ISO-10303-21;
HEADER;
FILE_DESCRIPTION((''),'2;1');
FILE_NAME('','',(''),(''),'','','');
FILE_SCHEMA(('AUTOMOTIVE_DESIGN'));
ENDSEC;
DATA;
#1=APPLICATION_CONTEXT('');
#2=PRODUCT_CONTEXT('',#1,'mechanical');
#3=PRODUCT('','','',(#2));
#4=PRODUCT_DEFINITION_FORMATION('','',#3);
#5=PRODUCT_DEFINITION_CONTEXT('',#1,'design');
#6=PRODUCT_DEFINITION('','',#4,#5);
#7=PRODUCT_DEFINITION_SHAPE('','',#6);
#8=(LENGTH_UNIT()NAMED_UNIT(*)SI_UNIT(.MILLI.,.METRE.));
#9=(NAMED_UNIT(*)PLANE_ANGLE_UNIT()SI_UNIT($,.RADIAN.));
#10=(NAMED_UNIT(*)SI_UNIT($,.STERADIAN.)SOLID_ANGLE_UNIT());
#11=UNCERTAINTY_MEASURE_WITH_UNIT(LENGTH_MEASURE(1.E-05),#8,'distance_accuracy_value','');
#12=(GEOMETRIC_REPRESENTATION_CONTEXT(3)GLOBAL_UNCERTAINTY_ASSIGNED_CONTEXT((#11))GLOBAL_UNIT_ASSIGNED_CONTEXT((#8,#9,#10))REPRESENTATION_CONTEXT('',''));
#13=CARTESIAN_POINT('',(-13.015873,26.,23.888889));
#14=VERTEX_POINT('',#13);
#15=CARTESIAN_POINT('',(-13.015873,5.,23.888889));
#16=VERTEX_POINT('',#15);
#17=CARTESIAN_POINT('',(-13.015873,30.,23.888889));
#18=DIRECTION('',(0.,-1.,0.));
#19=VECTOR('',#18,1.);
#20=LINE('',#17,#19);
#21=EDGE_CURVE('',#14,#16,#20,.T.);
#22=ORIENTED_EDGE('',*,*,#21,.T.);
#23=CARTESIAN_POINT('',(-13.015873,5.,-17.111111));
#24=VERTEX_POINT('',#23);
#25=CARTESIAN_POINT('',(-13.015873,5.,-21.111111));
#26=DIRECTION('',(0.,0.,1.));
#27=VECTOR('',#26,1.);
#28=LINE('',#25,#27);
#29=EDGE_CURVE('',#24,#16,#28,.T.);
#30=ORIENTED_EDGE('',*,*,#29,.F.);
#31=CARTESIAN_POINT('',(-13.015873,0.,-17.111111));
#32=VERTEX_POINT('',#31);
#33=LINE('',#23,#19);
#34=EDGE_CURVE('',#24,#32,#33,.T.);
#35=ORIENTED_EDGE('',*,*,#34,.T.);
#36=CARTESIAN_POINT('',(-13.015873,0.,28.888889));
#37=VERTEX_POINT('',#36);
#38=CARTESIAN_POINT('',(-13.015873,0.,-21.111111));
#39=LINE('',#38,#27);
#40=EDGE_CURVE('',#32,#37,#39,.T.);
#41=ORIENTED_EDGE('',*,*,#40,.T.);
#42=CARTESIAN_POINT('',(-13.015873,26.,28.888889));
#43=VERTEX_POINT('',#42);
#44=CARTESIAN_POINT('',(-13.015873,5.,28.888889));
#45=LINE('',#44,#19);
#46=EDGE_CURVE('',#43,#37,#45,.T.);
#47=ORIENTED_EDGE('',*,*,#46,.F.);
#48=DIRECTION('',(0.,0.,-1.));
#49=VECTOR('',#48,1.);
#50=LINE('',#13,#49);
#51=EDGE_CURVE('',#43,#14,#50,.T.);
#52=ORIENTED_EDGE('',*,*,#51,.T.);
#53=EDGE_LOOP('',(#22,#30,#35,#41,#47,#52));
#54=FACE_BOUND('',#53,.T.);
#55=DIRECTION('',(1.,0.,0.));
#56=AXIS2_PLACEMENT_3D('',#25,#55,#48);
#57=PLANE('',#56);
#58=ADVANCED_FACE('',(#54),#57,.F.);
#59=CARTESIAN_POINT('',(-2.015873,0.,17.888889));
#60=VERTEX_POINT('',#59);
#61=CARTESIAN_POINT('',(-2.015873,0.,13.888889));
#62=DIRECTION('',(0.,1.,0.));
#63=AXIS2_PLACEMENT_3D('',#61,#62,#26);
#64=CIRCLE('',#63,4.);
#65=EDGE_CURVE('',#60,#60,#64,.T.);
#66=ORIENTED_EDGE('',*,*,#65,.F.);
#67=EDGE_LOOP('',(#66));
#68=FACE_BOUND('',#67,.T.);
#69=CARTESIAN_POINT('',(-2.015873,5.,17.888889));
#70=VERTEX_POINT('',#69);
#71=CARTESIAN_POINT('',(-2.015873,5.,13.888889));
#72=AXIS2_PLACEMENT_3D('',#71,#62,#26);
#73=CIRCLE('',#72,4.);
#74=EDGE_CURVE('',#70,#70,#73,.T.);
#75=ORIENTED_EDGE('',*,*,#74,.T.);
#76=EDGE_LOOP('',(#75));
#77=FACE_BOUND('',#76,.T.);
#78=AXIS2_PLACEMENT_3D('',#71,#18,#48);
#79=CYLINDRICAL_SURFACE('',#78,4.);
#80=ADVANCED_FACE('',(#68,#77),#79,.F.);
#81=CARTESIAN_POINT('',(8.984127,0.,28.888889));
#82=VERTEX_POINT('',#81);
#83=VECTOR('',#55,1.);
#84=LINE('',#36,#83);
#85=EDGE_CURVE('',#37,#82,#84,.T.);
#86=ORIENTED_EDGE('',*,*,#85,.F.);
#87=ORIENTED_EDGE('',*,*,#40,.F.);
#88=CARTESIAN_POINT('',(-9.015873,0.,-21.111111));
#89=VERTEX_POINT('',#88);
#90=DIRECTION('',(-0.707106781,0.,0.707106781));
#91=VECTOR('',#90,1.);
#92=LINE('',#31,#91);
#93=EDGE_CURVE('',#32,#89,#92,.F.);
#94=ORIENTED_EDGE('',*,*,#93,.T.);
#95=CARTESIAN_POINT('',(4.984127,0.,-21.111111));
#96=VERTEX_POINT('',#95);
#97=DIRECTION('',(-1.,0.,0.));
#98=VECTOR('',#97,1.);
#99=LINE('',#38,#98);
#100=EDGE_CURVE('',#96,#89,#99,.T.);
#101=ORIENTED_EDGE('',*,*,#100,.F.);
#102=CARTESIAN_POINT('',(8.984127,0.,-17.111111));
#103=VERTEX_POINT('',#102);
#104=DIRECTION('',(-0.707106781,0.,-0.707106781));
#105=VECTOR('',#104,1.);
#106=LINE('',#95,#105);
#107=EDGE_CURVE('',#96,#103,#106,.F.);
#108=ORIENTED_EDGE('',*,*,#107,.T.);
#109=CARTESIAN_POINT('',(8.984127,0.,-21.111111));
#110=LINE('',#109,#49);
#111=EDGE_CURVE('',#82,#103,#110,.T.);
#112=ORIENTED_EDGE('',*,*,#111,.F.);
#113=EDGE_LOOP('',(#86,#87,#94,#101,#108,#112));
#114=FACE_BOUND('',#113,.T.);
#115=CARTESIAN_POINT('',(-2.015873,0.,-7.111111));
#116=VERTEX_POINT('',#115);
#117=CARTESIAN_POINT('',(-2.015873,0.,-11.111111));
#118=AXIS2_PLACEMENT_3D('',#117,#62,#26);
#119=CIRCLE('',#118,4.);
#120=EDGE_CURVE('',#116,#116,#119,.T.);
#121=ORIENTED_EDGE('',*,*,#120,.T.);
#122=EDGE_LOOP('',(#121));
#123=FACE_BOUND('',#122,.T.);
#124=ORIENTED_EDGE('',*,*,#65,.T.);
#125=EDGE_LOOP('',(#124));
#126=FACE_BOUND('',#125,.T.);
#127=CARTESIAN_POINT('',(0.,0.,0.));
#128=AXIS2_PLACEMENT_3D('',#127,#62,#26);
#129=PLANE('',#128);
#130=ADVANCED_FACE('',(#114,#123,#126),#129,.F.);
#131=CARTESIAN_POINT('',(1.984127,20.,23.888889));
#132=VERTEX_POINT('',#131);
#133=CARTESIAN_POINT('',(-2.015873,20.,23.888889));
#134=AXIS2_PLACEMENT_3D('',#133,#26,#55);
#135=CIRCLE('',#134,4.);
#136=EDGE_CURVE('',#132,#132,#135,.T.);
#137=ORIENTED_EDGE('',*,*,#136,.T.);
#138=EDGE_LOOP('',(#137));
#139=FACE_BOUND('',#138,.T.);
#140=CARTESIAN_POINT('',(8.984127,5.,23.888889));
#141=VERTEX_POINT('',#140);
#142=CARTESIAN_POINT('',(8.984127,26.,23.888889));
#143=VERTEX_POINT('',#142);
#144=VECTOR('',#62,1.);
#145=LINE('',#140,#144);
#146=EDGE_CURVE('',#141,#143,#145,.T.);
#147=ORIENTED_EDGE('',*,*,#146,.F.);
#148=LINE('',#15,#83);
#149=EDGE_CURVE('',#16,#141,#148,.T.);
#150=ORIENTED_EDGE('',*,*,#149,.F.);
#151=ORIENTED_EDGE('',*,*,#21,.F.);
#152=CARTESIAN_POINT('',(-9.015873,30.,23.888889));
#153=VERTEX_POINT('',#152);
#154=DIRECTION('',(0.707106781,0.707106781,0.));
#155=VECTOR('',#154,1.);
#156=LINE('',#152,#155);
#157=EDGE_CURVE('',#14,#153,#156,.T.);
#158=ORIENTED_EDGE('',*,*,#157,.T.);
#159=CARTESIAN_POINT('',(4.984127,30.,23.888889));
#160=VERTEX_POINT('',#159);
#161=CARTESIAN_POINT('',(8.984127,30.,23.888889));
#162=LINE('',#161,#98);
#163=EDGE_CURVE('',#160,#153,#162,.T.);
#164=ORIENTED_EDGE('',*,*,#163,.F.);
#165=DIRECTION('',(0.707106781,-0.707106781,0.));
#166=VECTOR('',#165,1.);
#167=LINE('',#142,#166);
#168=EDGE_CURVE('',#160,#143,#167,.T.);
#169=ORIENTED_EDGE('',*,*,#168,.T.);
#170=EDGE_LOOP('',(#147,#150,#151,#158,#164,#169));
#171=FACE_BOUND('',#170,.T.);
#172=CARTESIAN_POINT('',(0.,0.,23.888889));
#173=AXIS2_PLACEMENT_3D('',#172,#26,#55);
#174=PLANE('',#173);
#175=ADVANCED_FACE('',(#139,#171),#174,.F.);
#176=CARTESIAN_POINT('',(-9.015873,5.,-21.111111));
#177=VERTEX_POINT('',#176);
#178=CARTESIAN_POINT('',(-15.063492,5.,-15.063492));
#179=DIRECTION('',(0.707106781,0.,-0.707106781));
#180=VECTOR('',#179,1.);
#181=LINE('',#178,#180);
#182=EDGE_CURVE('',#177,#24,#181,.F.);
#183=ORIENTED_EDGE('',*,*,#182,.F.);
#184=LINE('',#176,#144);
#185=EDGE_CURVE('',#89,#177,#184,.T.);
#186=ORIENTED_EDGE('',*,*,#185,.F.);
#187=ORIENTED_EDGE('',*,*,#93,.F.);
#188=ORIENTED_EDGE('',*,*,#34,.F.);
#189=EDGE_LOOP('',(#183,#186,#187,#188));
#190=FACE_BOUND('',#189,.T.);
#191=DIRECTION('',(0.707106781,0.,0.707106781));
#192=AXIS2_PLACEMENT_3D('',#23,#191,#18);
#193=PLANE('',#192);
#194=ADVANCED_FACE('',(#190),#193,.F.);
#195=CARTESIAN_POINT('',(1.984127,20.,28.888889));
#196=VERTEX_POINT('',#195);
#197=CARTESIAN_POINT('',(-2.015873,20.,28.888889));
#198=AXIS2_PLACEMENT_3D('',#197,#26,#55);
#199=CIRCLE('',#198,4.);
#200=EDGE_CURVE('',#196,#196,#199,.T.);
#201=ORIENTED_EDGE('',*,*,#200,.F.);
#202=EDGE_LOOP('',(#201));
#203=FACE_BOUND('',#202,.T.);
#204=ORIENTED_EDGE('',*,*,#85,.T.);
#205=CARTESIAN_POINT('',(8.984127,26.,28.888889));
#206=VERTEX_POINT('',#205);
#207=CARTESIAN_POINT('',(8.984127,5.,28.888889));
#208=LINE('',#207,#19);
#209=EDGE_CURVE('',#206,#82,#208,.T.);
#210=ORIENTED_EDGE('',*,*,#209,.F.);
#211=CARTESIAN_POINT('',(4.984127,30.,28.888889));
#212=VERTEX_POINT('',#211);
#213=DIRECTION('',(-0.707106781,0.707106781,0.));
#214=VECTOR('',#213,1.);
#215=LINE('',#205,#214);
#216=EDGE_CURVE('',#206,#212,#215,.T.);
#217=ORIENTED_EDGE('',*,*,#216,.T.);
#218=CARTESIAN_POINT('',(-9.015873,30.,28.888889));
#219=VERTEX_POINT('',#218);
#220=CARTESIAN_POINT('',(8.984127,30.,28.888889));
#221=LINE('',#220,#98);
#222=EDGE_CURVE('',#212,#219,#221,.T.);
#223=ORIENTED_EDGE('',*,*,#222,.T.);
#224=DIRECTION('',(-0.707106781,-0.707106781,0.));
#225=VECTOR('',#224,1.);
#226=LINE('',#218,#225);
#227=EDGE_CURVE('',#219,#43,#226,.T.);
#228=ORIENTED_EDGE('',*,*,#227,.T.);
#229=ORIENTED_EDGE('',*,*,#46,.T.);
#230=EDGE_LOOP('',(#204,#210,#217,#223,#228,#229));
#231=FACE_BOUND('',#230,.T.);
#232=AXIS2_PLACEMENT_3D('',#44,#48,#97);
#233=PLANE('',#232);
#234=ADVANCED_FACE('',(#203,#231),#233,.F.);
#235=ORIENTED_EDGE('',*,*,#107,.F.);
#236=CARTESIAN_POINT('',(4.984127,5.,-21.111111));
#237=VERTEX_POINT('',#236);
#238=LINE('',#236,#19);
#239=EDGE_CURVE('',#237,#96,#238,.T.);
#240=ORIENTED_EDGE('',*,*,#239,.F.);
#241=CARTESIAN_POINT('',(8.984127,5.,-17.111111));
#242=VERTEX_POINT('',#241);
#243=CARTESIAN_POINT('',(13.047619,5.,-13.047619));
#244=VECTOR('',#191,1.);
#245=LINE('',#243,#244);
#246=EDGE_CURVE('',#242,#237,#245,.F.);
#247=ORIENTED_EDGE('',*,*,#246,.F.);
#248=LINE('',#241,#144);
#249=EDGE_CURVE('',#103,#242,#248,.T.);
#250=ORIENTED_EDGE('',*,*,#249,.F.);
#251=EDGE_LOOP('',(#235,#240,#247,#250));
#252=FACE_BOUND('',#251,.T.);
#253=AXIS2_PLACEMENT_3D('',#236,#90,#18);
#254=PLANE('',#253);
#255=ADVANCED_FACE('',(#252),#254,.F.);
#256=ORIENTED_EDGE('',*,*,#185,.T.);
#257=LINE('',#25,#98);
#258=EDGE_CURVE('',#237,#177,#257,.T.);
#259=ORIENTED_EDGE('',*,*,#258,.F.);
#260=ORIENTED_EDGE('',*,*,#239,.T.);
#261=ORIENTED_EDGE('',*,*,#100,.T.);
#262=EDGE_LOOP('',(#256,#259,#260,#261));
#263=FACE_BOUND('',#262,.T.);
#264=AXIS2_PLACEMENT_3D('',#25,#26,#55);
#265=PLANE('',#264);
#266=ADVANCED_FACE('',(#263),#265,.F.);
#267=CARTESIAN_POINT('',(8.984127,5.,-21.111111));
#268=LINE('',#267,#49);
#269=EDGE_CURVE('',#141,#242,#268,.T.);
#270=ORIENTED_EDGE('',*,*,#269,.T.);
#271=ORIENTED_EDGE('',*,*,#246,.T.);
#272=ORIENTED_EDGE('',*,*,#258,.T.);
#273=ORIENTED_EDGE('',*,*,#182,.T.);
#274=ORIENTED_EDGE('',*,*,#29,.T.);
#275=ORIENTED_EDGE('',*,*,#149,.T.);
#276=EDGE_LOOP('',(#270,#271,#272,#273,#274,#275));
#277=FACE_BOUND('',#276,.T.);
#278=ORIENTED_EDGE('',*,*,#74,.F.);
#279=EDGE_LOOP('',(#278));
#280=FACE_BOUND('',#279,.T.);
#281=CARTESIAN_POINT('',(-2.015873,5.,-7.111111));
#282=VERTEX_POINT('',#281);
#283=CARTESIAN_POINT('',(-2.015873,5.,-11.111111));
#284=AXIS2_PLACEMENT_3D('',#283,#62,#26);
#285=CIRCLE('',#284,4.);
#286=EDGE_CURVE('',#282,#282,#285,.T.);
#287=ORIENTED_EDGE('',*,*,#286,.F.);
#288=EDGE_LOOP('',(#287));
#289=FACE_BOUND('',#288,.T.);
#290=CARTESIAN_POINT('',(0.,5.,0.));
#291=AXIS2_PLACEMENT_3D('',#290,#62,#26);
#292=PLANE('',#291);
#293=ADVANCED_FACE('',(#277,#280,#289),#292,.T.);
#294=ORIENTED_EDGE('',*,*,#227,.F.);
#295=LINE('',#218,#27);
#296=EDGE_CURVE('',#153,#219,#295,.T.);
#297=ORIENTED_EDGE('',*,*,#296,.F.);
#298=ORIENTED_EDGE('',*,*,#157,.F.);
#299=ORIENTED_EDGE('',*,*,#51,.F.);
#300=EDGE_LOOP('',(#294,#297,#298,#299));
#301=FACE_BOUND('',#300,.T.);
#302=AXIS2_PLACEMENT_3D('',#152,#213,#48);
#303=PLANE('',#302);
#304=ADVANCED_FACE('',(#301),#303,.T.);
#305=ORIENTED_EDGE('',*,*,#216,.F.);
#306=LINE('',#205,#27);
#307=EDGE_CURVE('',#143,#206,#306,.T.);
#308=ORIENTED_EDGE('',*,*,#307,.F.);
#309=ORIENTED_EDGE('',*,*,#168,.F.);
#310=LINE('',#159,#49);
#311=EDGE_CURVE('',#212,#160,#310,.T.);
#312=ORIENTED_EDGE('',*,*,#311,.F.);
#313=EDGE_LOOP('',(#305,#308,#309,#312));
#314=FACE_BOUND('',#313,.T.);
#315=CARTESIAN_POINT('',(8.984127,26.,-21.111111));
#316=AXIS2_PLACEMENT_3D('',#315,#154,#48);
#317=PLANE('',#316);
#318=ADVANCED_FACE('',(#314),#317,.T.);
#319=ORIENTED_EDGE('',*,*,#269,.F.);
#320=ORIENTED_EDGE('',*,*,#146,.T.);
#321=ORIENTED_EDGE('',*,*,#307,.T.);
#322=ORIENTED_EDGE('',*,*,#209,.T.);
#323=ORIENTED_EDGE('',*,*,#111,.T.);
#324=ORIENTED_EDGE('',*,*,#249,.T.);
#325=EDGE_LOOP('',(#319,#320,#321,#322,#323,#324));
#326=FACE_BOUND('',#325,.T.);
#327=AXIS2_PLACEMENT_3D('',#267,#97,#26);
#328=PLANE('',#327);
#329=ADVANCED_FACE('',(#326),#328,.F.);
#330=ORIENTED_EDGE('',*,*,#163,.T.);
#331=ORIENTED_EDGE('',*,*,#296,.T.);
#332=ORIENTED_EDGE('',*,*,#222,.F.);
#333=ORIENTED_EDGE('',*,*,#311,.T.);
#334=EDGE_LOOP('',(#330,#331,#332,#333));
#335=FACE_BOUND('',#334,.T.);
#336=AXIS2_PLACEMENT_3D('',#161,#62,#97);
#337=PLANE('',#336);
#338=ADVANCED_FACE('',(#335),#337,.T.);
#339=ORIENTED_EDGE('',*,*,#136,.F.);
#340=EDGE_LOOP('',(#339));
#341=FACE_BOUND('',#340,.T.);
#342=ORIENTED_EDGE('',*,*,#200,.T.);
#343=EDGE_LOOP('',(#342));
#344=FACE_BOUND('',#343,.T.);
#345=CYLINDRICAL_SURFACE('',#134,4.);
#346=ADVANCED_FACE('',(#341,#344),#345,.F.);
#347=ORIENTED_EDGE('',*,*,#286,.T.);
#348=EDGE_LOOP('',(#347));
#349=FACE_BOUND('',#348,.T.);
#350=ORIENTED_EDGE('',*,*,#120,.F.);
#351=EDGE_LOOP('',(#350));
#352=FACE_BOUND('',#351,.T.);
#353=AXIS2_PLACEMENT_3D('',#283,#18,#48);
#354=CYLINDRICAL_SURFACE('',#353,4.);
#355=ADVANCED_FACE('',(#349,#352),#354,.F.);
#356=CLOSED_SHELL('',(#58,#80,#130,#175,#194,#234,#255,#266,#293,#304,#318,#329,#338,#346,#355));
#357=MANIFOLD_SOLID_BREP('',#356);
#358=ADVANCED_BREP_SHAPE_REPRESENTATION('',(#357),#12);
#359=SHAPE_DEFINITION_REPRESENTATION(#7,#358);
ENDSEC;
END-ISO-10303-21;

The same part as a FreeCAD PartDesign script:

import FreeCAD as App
import Part
import Sketcher

V = App.Vector
Q = App.Units.Quantity


def edges_at(feature, points):
    """Names of the edges that pass closest to the given points."""
    edges = feature.Shape.Edges
    near = lambda p: min(range(len(edges)), key=lambda i: edges[i].distToShape(Part.Vertex(*p))[0])
    return sorted({f"Edge{near(p) + 1}" for p in points})

doc = App.newDocument("Part")
body = doc.addObject("PartDesign::Body", "Body")

# Sketch on XZ plane
sketch1 = body.newObject("Sketcher::SketchObject", "Sketch")
sketch1.AttachmentSupport = (doc.getObject("XZ_Plane"), [""])
sketch1.MapMode = "FlatFace"
sketch1.addGeometry([
    Part.LineSegment(V(-13, -21.1, 0), V(-13, 28.9, 0)),  # 0
    Part.LineSegment(V(-13, 28.9, 0), V(9, 28.9, 0)),  # 1
    Part.LineSegment(V(9, 28.9, 0), V(9, -21.1, 0)),  # 2
    Part.LineSegment(V(9, -21.1, 0), V(-13, -21.1, 0)),  # 3
    Part.Circle(V(-2, 13.9, 0), V(0, 0, 1), 4),  # 4
    Part.Circle(V(-2, -11.1, 0), V(0, 0, 1), 4),  # 5
], False)
sketch1.addConstraint([
    Sketcher.Constraint("Coincident", 0, 2, 1, 1),
    Sketcher.Constraint("Coincident", 1, 2, 2, 1),
    Sketcher.Constraint("Coincident", 2, 2, 3, 1),
    Sketcher.Constraint("Coincident", 3, 2, 0, 1),
    Sketcher.Constraint("Vertical", 0),
    Sketcher.Constraint("Horizontal", 1),
    Sketcher.Constraint("Vertical", 2),
    Sketcher.Constraint("Horizontal", 3),
    Sketcher.Constraint("Equal", 4, 5),
    Sketcher.Constraint("Vertical", 4, 3, 5, 3),
    Sketcher.Constraint("Diameter", 4, Q("8 mm")),
    Sketcher.Constraint("DistanceX", 1, 1, 1, 2, Q("22 mm")),
    Sketcher.Constraint("DistanceY", 0, 1, 0, 2, Q("50 mm")),
    Sketcher.Constraint("DistanceY", 5, 3, 4, 3, Q("25 mm")),
    Sketcher.Constraint("DistanceX", 0, 2, 4, 3, Q("11 mm")),
    Sketcher.Constraint("DistanceY", 4, 3, 0, 2, Q("15 mm")),
    Sketcher.Constraint("DistanceY", -1, 1, 4, 3, Q("13.888889 mm")),
    Sketcher.Constraint("DistanceX", 4, 3, -1, 1, Q("2.015873 mm")),
])
pad1 = body.newObject("PartDesign::Pad", "Pad")
pad1.Profile = sketch1
pad1.Length = 5
pad1.Reversed = True

# Sketch on XY plane
sketch2 = body.newObject("Sketcher::SketchObject", "Sketch001")
sketch2.AttachmentSupport = (doc.getObject("XY_Plane"), [""])
sketch2.MapMode = "FlatFace"
sketch2.AttachmentOffset = App.Placement(V(0, 0, 28.888889), App.Rotation())
sketch2.addGeometry([
    Part.LineSegment(V(-13, 30, 0), V(-13, 5, 0)),  # 0
    Part.LineSegment(V(-13, 5, 0), V(9, 5, 0)),  # 1
    Part.LineSegment(V(9, 5, 0), V(9, 30, 0)),  # 2
    Part.LineSegment(V(9, 30, 0), V(-13, 30, 0)),  # 3
    Part.Circle(V(-2, 20, 0), V(0, 0, 1), 4),  # 4
], False)
sketch2.addConstraint([
    Sketcher.Constraint("Coincident", 0, 2, 1, 1),
    Sketcher.Constraint("Coincident", 1, 2, 2, 1),
    Sketcher.Constraint("Coincident", 2, 2, 3, 1),
    Sketcher.Constraint("Coincident", 3, 2, 0, 1),
    Sketcher.Constraint("Vertical", 0),
    Sketcher.Constraint("Horizontal", 1),
    Sketcher.Constraint("Vertical", 2),
    Sketcher.Constraint("Horizontal", 3),
    Sketcher.Constraint("Diameter", 4, Q("8 mm")),
    Sketcher.Constraint("DistanceX", 1, 1, 1, 2, Q("22 mm")),
    Sketcher.Constraint("DistanceY", 0, 2, 0, 1, Q("25 mm")),
    Sketcher.Constraint("DistanceY", -1, 1, 4, 3, Q("20 mm")),
    Sketcher.Constraint("DistanceY", -1, 1, 0, 2, Q("5 mm")),
    Sketcher.Constraint("DistanceX", 0, 2, 4, 3, Q("11 mm")),
    Sketcher.Constraint("DistanceX", 4, 3, -1, 1, Q("2.015873 mm")),
])
pad2 = body.newObject("PartDesign::Pad", "Pad001")
pad2.Profile = sketch2
pad2.Length = 5
pad2.Reversed = True
doc.recompute()

chamfer = body.newObject("PartDesign::Chamfer", "Chamfer")
chamfer.Base = (pad2, edges_at(pad2, [
    (-13.016, 30, 26.389),
    (8.984, 30, 26.389),
    (-13.016, 2.5, -21.111),
    (8.984, 2.5, -21.111),
]))
chamfer.Size = 4

doc.recompute()
